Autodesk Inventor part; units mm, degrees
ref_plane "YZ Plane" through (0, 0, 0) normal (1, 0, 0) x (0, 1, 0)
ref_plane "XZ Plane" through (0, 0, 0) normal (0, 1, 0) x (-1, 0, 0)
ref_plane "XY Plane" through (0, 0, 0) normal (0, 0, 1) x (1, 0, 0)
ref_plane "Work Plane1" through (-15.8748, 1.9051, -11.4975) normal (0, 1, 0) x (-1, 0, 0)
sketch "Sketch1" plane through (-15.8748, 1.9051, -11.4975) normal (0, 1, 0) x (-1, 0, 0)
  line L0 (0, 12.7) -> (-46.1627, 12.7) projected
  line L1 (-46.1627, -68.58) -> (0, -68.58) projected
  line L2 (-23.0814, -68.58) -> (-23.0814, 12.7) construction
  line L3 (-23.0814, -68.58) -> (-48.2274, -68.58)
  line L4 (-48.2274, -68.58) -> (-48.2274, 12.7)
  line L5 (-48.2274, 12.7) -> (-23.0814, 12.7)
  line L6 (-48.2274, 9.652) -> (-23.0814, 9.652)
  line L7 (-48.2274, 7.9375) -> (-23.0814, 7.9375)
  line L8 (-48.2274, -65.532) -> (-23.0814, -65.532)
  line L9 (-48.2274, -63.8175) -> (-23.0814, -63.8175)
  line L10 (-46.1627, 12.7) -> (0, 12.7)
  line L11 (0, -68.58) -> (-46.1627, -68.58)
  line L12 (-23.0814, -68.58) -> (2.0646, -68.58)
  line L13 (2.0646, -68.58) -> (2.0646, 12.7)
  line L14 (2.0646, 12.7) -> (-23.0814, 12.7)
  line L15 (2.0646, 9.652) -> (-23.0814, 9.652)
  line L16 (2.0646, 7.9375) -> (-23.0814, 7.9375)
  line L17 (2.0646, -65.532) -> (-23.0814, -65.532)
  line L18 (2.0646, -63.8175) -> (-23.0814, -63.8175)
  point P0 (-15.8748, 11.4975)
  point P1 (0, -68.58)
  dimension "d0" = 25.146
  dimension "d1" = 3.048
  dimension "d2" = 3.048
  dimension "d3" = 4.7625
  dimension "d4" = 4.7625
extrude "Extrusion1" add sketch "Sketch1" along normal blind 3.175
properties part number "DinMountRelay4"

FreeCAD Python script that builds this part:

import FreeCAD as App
import Part
import Sketcher
Q = App.Units.Quantity


def add_polygon(sketch, points):
    """Adds a closed chain of lines whose ends are joined by coincident constraints."""
    first, n = sketch.GeometryCount, len(points)
    for a, b in zip(points, points[1:] + points[:1]):
        sketch.addGeometry(Part.LineSegment(App.Vector(*a, 0), App.Vector(*b, 0)), False)
    for i in range(n):
        sketch.addConstraint(Sketcher.Constraint("Coincident", first + i, 2, first + (i + 1) % n, 1))

doc = App.newDocument("Part")
params = doc.addObject("Spreadsheet::Sheet", "Params")
for row, (alias, value) in enumerate([
    ("sketch1_height", "3.2 in"),
    ("sketch1_width", "1.98 in"),
    ("pad1_length", "0.125 in"),
], start=1):
    params.set(f"A{row}", alias)
    params.set(f"B{row}", "=" + value)
    params.setAlias(f"B{row}", alias)

body = doc.addObject("PartDesign::Body", "Body")

# Sketch on XZ plane
sketch1 = doc.addObject("Sketcher::SketchObject", "Sketch")
body.addObject(sketch1)
sketch1.AttachmentSupport = (doc.XZ_Plane, [""])
sketch1.MapMode = "FlatFace"
sketch1.AttachmentOffset = App.Placement(App.Vector(0, 0, -0.0750039 * 25.4), App.Rotation())
add_polygon(sketch1, [(-18, 1), (32, 1), (32, -80), (-18, -80)])  # lines 0-3
sketch1.addConstraint([
    Sketcher.Constraint("Horizontal", 0),
    Sketcher.Constraint("Vertical", 1),
    Sketcher.Constraint("Horizontal", 2),
    Sketcher.Constraint("Vertical", 3),
    Sketcher.Constraint("DistanceY", 1, 2, 1, 1, Q("3.2 in")),
    Sketcher.Constraint("DistanceX", 0, 1, 0, 2, Q("1.98 in")),
    Sketcher.Constraint("DistanceX", -1, 1, 0, 2, Q("32.3526 mm")),
    Sketcher.Constraint("DistanceY", -1, 1, 0, 2, Q("1.2025 mm")),
])
sketch1.setExpression("Constraints[8]", "Params.sketch1_height")
sketch1.setExpression("Constraints[9]", "Params.sketch1_width")
pad1 = doc.addObject("PartDesign::Pad", "Pad")
body.addObject(pad1)
pad1.Profile = sketch1
pad1.setExpression("Length", "Params.pad1_length")
pad1.Reversed = True

doc.recompute()
